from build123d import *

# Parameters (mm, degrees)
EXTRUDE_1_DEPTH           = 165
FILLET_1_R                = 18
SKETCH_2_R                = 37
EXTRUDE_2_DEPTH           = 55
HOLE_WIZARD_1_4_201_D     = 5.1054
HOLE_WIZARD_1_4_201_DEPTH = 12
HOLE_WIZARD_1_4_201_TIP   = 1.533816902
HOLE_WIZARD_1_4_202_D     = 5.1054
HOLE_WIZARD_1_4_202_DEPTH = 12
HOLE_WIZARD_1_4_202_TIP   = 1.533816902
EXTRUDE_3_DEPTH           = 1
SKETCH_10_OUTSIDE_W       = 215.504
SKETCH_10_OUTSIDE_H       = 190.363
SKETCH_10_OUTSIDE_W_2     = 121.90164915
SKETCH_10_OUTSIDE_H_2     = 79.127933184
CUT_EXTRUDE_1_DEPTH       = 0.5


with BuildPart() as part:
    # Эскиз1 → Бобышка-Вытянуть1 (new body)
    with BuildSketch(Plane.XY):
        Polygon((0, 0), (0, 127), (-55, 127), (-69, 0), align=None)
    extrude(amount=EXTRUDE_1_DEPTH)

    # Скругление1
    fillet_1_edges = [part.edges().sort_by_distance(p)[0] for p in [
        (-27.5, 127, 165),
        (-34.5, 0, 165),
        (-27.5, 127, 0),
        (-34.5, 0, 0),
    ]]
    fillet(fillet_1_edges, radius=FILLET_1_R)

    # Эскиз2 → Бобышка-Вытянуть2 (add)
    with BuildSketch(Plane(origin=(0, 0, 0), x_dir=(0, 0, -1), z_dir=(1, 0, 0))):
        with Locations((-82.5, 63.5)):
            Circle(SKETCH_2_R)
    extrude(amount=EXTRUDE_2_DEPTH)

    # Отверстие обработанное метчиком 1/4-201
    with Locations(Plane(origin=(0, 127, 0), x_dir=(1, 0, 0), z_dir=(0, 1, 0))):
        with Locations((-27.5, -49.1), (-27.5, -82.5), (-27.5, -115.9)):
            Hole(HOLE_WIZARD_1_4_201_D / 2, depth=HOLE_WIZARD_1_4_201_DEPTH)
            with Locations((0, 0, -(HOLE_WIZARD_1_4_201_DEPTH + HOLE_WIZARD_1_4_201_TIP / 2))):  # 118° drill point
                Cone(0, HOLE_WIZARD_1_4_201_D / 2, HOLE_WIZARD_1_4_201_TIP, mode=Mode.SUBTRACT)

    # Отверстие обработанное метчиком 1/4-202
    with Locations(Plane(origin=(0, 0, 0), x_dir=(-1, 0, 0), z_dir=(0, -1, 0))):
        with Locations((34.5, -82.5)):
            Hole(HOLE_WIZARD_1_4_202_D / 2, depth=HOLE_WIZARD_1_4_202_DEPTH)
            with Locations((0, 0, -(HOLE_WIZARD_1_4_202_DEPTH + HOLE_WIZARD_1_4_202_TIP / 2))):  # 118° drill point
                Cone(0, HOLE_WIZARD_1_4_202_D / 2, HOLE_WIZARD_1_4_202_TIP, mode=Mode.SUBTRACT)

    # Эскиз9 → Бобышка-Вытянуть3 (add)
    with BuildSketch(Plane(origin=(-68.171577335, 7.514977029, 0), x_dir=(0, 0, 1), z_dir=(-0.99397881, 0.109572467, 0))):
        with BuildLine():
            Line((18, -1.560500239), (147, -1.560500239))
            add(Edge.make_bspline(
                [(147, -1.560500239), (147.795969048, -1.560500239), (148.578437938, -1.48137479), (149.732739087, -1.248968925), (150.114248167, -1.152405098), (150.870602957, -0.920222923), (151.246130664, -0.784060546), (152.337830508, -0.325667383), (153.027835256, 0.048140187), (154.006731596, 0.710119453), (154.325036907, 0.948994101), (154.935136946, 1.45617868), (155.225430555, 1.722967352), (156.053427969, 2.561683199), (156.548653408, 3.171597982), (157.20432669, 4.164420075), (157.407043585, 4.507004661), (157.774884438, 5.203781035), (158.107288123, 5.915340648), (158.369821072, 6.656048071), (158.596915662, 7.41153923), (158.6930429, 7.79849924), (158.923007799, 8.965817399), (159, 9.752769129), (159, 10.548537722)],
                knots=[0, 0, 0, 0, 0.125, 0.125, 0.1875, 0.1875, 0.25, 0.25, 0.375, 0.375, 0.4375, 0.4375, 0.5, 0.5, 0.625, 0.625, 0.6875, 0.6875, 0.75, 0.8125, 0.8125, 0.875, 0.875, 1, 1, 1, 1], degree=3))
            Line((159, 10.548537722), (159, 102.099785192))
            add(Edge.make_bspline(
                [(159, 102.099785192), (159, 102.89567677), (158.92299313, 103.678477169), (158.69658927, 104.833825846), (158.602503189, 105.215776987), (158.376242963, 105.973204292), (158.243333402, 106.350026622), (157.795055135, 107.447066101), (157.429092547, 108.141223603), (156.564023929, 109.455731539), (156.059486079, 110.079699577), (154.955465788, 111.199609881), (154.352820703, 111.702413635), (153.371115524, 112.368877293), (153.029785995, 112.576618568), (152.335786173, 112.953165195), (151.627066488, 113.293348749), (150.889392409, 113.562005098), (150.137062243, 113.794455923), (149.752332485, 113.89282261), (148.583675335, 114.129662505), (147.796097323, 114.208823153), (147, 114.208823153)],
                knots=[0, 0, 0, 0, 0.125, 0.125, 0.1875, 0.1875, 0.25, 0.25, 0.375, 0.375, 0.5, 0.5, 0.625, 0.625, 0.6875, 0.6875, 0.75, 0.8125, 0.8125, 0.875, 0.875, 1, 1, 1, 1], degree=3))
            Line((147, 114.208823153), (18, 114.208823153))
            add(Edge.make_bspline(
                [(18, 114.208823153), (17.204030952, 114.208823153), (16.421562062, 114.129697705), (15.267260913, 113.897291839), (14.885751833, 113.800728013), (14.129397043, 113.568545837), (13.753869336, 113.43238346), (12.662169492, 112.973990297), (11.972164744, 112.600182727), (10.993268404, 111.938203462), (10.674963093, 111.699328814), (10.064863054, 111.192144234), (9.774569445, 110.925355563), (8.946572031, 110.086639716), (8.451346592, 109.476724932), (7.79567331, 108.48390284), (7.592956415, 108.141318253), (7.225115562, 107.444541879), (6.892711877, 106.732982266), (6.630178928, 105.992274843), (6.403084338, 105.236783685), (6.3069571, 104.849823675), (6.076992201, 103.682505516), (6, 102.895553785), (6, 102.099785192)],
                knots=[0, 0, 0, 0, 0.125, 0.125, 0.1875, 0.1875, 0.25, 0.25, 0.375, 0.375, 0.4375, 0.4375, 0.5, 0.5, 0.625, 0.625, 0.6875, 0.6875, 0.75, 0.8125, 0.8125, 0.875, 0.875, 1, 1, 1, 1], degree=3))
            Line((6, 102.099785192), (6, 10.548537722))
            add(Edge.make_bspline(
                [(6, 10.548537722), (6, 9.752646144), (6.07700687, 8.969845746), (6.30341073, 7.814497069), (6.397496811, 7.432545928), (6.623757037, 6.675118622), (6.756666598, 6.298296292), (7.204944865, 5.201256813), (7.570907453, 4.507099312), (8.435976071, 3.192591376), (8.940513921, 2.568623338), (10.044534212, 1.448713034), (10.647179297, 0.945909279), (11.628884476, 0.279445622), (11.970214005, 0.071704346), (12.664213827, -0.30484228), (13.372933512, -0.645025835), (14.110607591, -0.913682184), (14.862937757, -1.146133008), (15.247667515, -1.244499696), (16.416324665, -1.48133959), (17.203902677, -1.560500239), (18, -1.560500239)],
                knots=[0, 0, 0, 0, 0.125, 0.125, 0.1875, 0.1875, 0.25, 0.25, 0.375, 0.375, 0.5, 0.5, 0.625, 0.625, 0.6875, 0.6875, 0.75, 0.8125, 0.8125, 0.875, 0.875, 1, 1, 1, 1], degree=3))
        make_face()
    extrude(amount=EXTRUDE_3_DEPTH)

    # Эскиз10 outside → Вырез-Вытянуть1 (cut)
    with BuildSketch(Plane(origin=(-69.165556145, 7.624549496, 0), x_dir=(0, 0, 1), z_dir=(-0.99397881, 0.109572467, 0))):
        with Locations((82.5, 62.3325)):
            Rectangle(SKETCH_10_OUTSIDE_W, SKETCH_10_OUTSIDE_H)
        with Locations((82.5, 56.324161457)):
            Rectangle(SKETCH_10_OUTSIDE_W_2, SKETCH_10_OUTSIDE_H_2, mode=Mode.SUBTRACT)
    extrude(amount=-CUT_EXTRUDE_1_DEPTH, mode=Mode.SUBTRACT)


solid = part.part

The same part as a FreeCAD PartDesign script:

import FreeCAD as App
import Part
import Sketcher
from FreeCAD import Vector
Q = App.Units.Quantity


def edges_at(feature, points):
    """Names of the edges that pass closest to the given points."""
    edges = feature.Shape.Edges
    near = lambda p: min(range(len(edges)), key=lambda i: edges[i].distToShape(Part.Vertex(*p))[0])
    return sorted({f"Edge{near(p) + 1}" for p in points})


def add_polygon(sketch, points):
    """Adds a closed chain of lines whose ends are joined by coincident constraints."""
    first, n = sketch.GeometryCount, len(points)
    for a, b in zip(points, points[1:] + points[:1]):
        sketch.addGeometry(Part.LineSegment(App.Vector(*a, 0), App.Vector(*b, 0)), False)
    for i in range(n):
        sketch.addConstraint(Sketcher.Constraint("Coincident", first + i, 2, first + (i + 1) % n, 1))

doc = App.newDocument("Part")
body = doc.addObject("PartDesign::Body", "Body")

# Sketch on XY plane
sketch1 = body.newObject("Sketcher::SketchObject", "Sketch")
sketch1.AttachmentSupport = (doc.getObject("XY_Plane"), [""])
sketch1.MapMode = "FlatFace"
add_polygon(sketch1, [(0, 0), (0, 127), (-55, 127), (-69, 0)])  # lines 0-3
sketch1.addConstraint([
    Sketcher.Constraint("Vertical", 0),
    Sketcher.Constraint("Horizontal", 1),
    Sketcher.Constraint("Horizontal", 3),
    Sketcher.Constraint("Coincident", 3, 2, -1, 1),
    Sketcher.Constraint("DistanceX", 1, 2, 1, 1, Q("55 mm")),
    Sketcher.Constraint("DistanceX", 3, 1, 3, 2, Q("69 mm")),
    Sketcher.Constraint("DistanceY", 0, 1, 0, 2, Q("127 mm")),
])
pad1 = body.newObject("PartDesign::Pad", "Pad")
pad1.Profile = sketch1
pad1.Length = 165
doc.recompute()

fillet = body.newObject("PartDesign::Fillet", "Fillet")
fillet.Base = (pad1, edges_at(pad1, [
    (-27.5, 127, 165),
    (-34.5, 0, 165),
    (-27.5, 127, 0),
    (-34.5, 0, 0),
]))
fillet.Radius = 18

# Sketch on YZ plane
sketch2 = body.newObject("Sketcher::SketchObject", "Sketch001")
sketch2.AttachmentSupport = (doc.getObject("YZ_Plane"), [""])
sketch2.MapMode = "FlatFace"
sketch2.addGeometry(Part.Circle(Vector(64, 82, 0), Vector(0, 0, 1), 37), False)
sketch2.addConstraint([
    Sketcher.Constraint("Diameter", 0, Q("74 mm")),
    Sketcher.Constraint("DistanceX", -1, 1, 0, 3, Q("63.5 mm")),
    Sketcher.Constraint("DistanceY", -1, 1, 0, 3, Q("82.5 mm")),
])
pad2 = body.newObject("PartDesign::Pad", "Pad001")
pad2.Profile = sketch2
pad2.Length = 55

# Sketch on XZ plane
sketch3 = body.newObject("Sketcher::SketchObject", "Sketch002")
sketch3.AttachmentSupport = (doc.getObject("XZ_Plane"), [""])
sketch3.MapMode = "FlatFace"
sketch3.AttachmentOffset = App.Placement(Vector(0, 0, -127), App.Rotation())
sketch3.addGeometry([
    Part.Circle(Vector(-27.5, 49.1, 0), Vector(0, 0, 1), 2.6),
    Part.Circle(Vector(-27.5, 82.5, 0), Vector(0, 0, 1), 2.6),
    Part.Circle(Vector(-27.5, 115.9, 0), Vector(0, 0, 1), 2.6),
], False)
sketch3.addConstraint([
    Sketcher.Constraint("Equal", 0, 1),
    Sketcher.Constraint("Equal", 1, 2),
    Sketcher.Constraint("Vertical", 0, 3, 1, 3),
    Sketcher.Constraint("Vertical", 1, 3, 2, 3),
    Sketcher.Constraint("Diameter", 0, Q("5.1054 mm")),
    Sketcher.Constraint("DistanceX", 0, 3, -1, 1, Q("27.5 mm")),
    Sketcher.Constraint("DistanceY", -1, 1, 0, 3, Q("49.1 mm")),
    Sketcher.Constraint("DistanceY", -1, 1, 1, 3, Q("82.5 mm")),
    Sketcher.Constraint("DistanceY", -1, 1, 2, 3, Q("115.9 mm")),
])
doc.recompute()
hole = body.newObject("PartDesign::Hole", "Hole")
hole.Profile = sketch3
hole.ThreadType = "None"
hole.Diameter = 5.1054
hole.DepthType = "Dimension"
hole.Depth = 12
hole.DrillPoint = "Angled"
hole.DrillPointAngle = 118
hole.Reversed = True

# Sketch on XZ plane
sketch4 = body.newObject("Sketcher::SketchObject", "Sketch003")
sketch4.AttachmentSupport = (doc.getObject("XZ_Plane"), [""])
sketch4.MapMode = "FlatFace"
sketch4.addGeometry(Part.Circle(Vector(-34.5, 82.5, 0), Vector(0, 0, 1), 2.6), False)
sketch4.addConstraint([
    Sketcher.Constraint("Diameter", 0, Q("5.1054 mm")),
    Sketcher.Constraint("DistanceX", 0, 3, -1, 1, Q("34.5 mm")),
    Sketcher.Constraint("DistanceY", -1, 1, 0, 3, Q("82.5 mm")),
])
doc.recompute()
hole2 = body.newObject("PartDesign::Hole", "Hole001")
hole2.Profile = sketch4
hole2.ThreadType = "None"
hole2.Diameter = 5.1054
hole2.DepthType = "Dimension"
hole2.Depth = 12
hole2.DrillPoint = "Angled"
hole2.DrillPointAngle = 118

# Sketch on an angled plane
sketch5 = body.newObject("Sketcher::SketchObject", "Sketch004")
sketch5.Placement = App.Placement(Vector(-68.171577, 7.514977, 0), App.Rotation(Vector(0, 0, 1), Vector(0.109572467, 0.99397881, 0), Vector(-0.99397881, 0.109572467, 0), "ZXY"))
sketch5.addGeometry([
    Part.LineSegment(Vector(18, -1.5605, 0), Vector(147, -1.5605, 0)),  # 0
    Part.BSplineCurve([Vector(147, -1.5605, 0), Vector(147.795969, -1.5605, 0), Vector(148.578438, -1.481375, 0), Vector(149.732739, -1.248969, 0), Vector(150.114248, -1.152405, 0), Vector(150.870603, -0.920223, 0), Vector(151.246131, -0.784061, 0), Vector(152.337831, -0.325667, 0), Vector(153.027835, 0.04814, 0), Vector(154.006732, 0.710119, 0), Vector(154.325037, 0.948994, 0), Vector(154.935137, 1.456179, 0), Vector(155.225431, 1.722967, 0), Vector(156.053428, 2.561683, 0), Vector(156.548653, 3.171598, 0), Vector(157.204327, 4.16442, 0), Vector(157.407044, 4.507005, 0), Vector(157.774884, 5.203781, 0), Vector(158.107288, 5.915341, 0), Vector(158.369821, 6.656048, 0), Vector(158.596916, 7.411539, 0), Vector(158.693043, 7.798499, 0), Vector(158.923008, 8.965817, 0), Vector(159, 9.752769, 0), Vector(159, 10.548538, 0)], [4, 2, 2, 2, 2, 2, 2, 2, 2, 1, 2, 2, 4], [0, 0.125, 0.1875, 0.25, 0.375, 0.4375, 0.5, 0.625, 0.6875, 0.75, 0.8125, 0.875, 1], False, 3, [1, 1, 1, 1, 1, 1, 1, 1, 1, 1, 1, 1, 1, 1, 1, 1, 1, 1, 1, 1, 1, 1, 1, 1, 1], False),  # 1
    Part.LineSegment(Vector(159, 10.548538, 0), Vector(159, 102.099785, 0)),  # 2
    Part.BSplineCurve([Vector(159, 102.099785, 0), Vector(159, 102.895677, 0), Vector(158.922993, 103.678477, 0), Vector(158.696589, 104.833826, 0), Vector(158.602503, 105.215777, 0), Vector(158.376243, 105.973204, 0), Vector(158.243333, 106.350027, 0), Vector(157.795055, 107.447066, 0), Vector(157.429093, 108.141224, 0), Vector(156.564024, 109.455732, 0), Vector(156.059486, 110.0797, 0), Vector(154.955466, 111.19961, 0), Vector(154.352821, 111.702414, 0), Vector(153.371116, 112.368877, 0), Vector(153.029786, 112.576619, 0), Vector(152.335786, 112.953165, 0), Vector(151.627066, 113.293349, 0), Vector(150.889392, 113.562005, 0), Vector(150.137062, 113.794456, 0), Vector(149.752332, 113.892823, 0), Vector(148.583675, 114.129663, 0), Vector(147.796097, 114.208823, 0), Vector(147, 114.208823, 0)], [4, 2, 2, 2, 2, 2, 2, 2, 1, 2, 2, 4], [0, 0.125, 0.1875, 0.25, 0.375, 0.5, 0.625, 0.6875, 0.75, 0.8125, 0.875, 1], False, 3, [1, 1, 1, 1, 1, 1, 1, 1, 1, 1, 1, 1, 1, 1, 1, 1, 1, 1, 1, 1, 1, 1, 1], False),  # 3
    Part.LineSegment(Vector(147, 114.208823, 0), Vector(18, 114.208823, 0)),  # 4
    Part.BSplineCurve([Vector(18, 114.208823, 0), Vector(17.204031, 114.208823, 0), Vector(16.421562, 114.129698, 0), Vector(15.267261, 113.897292, 0), Vector(14.885752, 113.800728, 0), Vector(14.129397, 113.568546, 0), Vector(13.753869, 113.432383, 0), Vector(12.662169, 112.97399, 0), Vector(11.972165, 112.600183, 0), Vector(10.993268, 111.938203, 0), Vector(10.674963, 111.699329, 0), Vector(10.064863, 111.192144, 0), Vector(9.774569, 110.925356, 0), Vector(8.946572, 110.08664, 0), Vector(8.451347, 109.476725, 0), Vector(7.795673, 108.483903, 0), Vector(7.592956, 108.141318, 0), Vector(7.225116, 107.444542, 0), Vector(6.892712, 106.732982, 0), Vector(6.630179, 105.992275, 0), Vector(6.403084, 105.236784, 0), Vector(6.306957, 104.849824, 0), Vector(6.076992, 103.682506, 0), Vector(6, 102.895554, 0), Vector(6, 102.099785, 0)], [4, 2, 2, 2, 2, 2, 2, 2, 2, 1, 2, 2, 4], [0, 0.125, 0.1875, 0.25, 0.375, 0.4375, 0.5, 0.625, 0.6875, 0.75, 0.8125, 0.875, 1], False, 3, [1, 1, 1, 1, 1, 1, 1, 1, 1, 1, 1, 1, 1, 1, 1, 1, 1, 1, 1, 1, 1, 1, 1, 1, 1], False),  # 5
    Part.LineSegment(Vector(6, 102.099785, 0), Vector(6, 10.548538, 0)),  # 6
    Part.BSplineCurve([Vector(6, 10.548538, 0), Vector(6, 9.752646, 0), Vector(6.077007, 8.969846, 0), Vector(6.303411, 7.814497, 0), Vector(6.397497, 7.432546, 0), Vector(6.623757, 6.675119, 0), Vector(6.756667, 6.298296, 0), Vector(7.204945, 5.201257, 0), Vector(7.570907, 4.507099, 0), Vector(8.435976, 3.192591, 0), Vector(8.940514, 2.568623, 0), Vector(10.044534, 1.448713, 0), Vector(10.647179, 0.945909, 0), Vector(11.628884, 0.279446, 0), Vector(11.970214, 0.071704, 0), Vector(12.664214, -0.304842, 0), Vector(13.372934, -0.645026, 0), Vector(14.110608, -0.913682, 0), Vector(14.862938, -1.146133, 0), Vector(15.247668, -1.2445, 0), Vector(16.416325, -1.48134, 0), Vector(17.203903, -1.5605, 0), Vector(18, -1.5605, 0)], [4, 2, 2, 2, 2, 2, 2, 2, 1, 2, 2, 4], [0, 0.125, 0.1875, 0.25, 0.375, 0.5, 0.625, 0.6875, 0.75, 0.8125, 0.875, 1], False, 3, [1, 1, 1, 1, 1, 1, 1, 1, 1, 1, 1, 1, 1, 1, 1, 1, 1, 1, 1, 1, 1, 1, 1], False),  # 7
], False)
sketch5.addConstraint([
    Sketcher.Constraint("Block", 1),
    Sketcher.Constraint("Block", 3),
    Sketcher.Constraint("Block", 5),
    Sketcher.Constraint("Block", 7),
    Sketcher.Constraint("Coincident", 0, 2, 1, 1),
    Sketcher.Constraint("Coincident", 1, 2, 2, 1),
    Sketcher.Constraint("Coincident", 2, 2, 3, 1),
    Sketcher.Constraint("Coincident", 3, 2, 4, 1),
    Sketcher.Constraint("Coincident", 4, 2, 5, 1),
    Sketcher.Constraint("Coincident", 5, 2, 6, 1),
    Sketcher.Constraint("Coincident", 6, 2, 7, 1),
    Sketcher.Constraint("Coincident", 7, 2, 0, 1),
])
pad3 = body.newObject("PartDesign::Pad", "Pad002")
pad3.Profile = sketch5
pad3.Length = 1

# Sketch on an angled plane
sketch6 = body.newObject("Sketcher::SketchObject", "Sketch005")
sketch6.Placement = App.Placement(Vector(-69.165556, 7.624549, 0), App.Rotation(Vector(0, 0, 1), Vector(0.109572467, 0.99397881, 0), Vector(-0.99397881, 0.109572467, 0), "ZXY"))
add_polygon(sketch6, [(-25, 158), (-25, -33), (190, -33), (190, 158)])  # lines 0-3
add_polygon(sketch6, [(143, 17), (22, 17), (22, 96), (143, 96)])  # lines 4-7
sketch6.addConstraint([
    Sketcher.Constraint("Vertical", 0),
    Sketcher.Constraint("Horizontal", 1),
    Sketcher.Constraint("Vertical", 2),
    Sketcher.Constraint("Horizontal", 3),
    Sketcher.Constraint("Horizontal", 4),
    Sketcher.Constraint("Vertical", 5),
    Sketcher.Constraint("Horizontal", 6),
    Sketcher.Constraint("Vertical", 7),
    Sketcher.Constraint("DistanceX", 1, 1, 1, 2, Q("215.504 mm")),
    Sketcher.Constraint("DistanceY", 0, 2, 0, 1, Q("190.363 mm")),
    Sketcher.Constraint("DistanceX", 0, 2, -1, 1, Q("25.252 mm")),
    Sketcher.Constraint("DistanceY", 0, 2, -1, 1, Q("32.849 mm")),
    Sketcher.Constraint("DistanceX", 4, 2, 4, 1, Q("121.901649 mm")),
    Sketcher.Constraint("DistanceY", 5, 1, 5, 2, Q("79.127933 mm")),
    Sketcher.Constraint("DistanceY", -1, 1, 5, 2, Q("95.888128 mm")),
    Sketcher.Constraint("DistanceX", -1, 1, 4, 2, Q("21.549175 mm")),
])
pocket1 = body.newObject("PartDesign::Pocket", "Pocket")
pocket1.Profile = sketch6
pocket1.Length = 0.5

doc.recompute()
